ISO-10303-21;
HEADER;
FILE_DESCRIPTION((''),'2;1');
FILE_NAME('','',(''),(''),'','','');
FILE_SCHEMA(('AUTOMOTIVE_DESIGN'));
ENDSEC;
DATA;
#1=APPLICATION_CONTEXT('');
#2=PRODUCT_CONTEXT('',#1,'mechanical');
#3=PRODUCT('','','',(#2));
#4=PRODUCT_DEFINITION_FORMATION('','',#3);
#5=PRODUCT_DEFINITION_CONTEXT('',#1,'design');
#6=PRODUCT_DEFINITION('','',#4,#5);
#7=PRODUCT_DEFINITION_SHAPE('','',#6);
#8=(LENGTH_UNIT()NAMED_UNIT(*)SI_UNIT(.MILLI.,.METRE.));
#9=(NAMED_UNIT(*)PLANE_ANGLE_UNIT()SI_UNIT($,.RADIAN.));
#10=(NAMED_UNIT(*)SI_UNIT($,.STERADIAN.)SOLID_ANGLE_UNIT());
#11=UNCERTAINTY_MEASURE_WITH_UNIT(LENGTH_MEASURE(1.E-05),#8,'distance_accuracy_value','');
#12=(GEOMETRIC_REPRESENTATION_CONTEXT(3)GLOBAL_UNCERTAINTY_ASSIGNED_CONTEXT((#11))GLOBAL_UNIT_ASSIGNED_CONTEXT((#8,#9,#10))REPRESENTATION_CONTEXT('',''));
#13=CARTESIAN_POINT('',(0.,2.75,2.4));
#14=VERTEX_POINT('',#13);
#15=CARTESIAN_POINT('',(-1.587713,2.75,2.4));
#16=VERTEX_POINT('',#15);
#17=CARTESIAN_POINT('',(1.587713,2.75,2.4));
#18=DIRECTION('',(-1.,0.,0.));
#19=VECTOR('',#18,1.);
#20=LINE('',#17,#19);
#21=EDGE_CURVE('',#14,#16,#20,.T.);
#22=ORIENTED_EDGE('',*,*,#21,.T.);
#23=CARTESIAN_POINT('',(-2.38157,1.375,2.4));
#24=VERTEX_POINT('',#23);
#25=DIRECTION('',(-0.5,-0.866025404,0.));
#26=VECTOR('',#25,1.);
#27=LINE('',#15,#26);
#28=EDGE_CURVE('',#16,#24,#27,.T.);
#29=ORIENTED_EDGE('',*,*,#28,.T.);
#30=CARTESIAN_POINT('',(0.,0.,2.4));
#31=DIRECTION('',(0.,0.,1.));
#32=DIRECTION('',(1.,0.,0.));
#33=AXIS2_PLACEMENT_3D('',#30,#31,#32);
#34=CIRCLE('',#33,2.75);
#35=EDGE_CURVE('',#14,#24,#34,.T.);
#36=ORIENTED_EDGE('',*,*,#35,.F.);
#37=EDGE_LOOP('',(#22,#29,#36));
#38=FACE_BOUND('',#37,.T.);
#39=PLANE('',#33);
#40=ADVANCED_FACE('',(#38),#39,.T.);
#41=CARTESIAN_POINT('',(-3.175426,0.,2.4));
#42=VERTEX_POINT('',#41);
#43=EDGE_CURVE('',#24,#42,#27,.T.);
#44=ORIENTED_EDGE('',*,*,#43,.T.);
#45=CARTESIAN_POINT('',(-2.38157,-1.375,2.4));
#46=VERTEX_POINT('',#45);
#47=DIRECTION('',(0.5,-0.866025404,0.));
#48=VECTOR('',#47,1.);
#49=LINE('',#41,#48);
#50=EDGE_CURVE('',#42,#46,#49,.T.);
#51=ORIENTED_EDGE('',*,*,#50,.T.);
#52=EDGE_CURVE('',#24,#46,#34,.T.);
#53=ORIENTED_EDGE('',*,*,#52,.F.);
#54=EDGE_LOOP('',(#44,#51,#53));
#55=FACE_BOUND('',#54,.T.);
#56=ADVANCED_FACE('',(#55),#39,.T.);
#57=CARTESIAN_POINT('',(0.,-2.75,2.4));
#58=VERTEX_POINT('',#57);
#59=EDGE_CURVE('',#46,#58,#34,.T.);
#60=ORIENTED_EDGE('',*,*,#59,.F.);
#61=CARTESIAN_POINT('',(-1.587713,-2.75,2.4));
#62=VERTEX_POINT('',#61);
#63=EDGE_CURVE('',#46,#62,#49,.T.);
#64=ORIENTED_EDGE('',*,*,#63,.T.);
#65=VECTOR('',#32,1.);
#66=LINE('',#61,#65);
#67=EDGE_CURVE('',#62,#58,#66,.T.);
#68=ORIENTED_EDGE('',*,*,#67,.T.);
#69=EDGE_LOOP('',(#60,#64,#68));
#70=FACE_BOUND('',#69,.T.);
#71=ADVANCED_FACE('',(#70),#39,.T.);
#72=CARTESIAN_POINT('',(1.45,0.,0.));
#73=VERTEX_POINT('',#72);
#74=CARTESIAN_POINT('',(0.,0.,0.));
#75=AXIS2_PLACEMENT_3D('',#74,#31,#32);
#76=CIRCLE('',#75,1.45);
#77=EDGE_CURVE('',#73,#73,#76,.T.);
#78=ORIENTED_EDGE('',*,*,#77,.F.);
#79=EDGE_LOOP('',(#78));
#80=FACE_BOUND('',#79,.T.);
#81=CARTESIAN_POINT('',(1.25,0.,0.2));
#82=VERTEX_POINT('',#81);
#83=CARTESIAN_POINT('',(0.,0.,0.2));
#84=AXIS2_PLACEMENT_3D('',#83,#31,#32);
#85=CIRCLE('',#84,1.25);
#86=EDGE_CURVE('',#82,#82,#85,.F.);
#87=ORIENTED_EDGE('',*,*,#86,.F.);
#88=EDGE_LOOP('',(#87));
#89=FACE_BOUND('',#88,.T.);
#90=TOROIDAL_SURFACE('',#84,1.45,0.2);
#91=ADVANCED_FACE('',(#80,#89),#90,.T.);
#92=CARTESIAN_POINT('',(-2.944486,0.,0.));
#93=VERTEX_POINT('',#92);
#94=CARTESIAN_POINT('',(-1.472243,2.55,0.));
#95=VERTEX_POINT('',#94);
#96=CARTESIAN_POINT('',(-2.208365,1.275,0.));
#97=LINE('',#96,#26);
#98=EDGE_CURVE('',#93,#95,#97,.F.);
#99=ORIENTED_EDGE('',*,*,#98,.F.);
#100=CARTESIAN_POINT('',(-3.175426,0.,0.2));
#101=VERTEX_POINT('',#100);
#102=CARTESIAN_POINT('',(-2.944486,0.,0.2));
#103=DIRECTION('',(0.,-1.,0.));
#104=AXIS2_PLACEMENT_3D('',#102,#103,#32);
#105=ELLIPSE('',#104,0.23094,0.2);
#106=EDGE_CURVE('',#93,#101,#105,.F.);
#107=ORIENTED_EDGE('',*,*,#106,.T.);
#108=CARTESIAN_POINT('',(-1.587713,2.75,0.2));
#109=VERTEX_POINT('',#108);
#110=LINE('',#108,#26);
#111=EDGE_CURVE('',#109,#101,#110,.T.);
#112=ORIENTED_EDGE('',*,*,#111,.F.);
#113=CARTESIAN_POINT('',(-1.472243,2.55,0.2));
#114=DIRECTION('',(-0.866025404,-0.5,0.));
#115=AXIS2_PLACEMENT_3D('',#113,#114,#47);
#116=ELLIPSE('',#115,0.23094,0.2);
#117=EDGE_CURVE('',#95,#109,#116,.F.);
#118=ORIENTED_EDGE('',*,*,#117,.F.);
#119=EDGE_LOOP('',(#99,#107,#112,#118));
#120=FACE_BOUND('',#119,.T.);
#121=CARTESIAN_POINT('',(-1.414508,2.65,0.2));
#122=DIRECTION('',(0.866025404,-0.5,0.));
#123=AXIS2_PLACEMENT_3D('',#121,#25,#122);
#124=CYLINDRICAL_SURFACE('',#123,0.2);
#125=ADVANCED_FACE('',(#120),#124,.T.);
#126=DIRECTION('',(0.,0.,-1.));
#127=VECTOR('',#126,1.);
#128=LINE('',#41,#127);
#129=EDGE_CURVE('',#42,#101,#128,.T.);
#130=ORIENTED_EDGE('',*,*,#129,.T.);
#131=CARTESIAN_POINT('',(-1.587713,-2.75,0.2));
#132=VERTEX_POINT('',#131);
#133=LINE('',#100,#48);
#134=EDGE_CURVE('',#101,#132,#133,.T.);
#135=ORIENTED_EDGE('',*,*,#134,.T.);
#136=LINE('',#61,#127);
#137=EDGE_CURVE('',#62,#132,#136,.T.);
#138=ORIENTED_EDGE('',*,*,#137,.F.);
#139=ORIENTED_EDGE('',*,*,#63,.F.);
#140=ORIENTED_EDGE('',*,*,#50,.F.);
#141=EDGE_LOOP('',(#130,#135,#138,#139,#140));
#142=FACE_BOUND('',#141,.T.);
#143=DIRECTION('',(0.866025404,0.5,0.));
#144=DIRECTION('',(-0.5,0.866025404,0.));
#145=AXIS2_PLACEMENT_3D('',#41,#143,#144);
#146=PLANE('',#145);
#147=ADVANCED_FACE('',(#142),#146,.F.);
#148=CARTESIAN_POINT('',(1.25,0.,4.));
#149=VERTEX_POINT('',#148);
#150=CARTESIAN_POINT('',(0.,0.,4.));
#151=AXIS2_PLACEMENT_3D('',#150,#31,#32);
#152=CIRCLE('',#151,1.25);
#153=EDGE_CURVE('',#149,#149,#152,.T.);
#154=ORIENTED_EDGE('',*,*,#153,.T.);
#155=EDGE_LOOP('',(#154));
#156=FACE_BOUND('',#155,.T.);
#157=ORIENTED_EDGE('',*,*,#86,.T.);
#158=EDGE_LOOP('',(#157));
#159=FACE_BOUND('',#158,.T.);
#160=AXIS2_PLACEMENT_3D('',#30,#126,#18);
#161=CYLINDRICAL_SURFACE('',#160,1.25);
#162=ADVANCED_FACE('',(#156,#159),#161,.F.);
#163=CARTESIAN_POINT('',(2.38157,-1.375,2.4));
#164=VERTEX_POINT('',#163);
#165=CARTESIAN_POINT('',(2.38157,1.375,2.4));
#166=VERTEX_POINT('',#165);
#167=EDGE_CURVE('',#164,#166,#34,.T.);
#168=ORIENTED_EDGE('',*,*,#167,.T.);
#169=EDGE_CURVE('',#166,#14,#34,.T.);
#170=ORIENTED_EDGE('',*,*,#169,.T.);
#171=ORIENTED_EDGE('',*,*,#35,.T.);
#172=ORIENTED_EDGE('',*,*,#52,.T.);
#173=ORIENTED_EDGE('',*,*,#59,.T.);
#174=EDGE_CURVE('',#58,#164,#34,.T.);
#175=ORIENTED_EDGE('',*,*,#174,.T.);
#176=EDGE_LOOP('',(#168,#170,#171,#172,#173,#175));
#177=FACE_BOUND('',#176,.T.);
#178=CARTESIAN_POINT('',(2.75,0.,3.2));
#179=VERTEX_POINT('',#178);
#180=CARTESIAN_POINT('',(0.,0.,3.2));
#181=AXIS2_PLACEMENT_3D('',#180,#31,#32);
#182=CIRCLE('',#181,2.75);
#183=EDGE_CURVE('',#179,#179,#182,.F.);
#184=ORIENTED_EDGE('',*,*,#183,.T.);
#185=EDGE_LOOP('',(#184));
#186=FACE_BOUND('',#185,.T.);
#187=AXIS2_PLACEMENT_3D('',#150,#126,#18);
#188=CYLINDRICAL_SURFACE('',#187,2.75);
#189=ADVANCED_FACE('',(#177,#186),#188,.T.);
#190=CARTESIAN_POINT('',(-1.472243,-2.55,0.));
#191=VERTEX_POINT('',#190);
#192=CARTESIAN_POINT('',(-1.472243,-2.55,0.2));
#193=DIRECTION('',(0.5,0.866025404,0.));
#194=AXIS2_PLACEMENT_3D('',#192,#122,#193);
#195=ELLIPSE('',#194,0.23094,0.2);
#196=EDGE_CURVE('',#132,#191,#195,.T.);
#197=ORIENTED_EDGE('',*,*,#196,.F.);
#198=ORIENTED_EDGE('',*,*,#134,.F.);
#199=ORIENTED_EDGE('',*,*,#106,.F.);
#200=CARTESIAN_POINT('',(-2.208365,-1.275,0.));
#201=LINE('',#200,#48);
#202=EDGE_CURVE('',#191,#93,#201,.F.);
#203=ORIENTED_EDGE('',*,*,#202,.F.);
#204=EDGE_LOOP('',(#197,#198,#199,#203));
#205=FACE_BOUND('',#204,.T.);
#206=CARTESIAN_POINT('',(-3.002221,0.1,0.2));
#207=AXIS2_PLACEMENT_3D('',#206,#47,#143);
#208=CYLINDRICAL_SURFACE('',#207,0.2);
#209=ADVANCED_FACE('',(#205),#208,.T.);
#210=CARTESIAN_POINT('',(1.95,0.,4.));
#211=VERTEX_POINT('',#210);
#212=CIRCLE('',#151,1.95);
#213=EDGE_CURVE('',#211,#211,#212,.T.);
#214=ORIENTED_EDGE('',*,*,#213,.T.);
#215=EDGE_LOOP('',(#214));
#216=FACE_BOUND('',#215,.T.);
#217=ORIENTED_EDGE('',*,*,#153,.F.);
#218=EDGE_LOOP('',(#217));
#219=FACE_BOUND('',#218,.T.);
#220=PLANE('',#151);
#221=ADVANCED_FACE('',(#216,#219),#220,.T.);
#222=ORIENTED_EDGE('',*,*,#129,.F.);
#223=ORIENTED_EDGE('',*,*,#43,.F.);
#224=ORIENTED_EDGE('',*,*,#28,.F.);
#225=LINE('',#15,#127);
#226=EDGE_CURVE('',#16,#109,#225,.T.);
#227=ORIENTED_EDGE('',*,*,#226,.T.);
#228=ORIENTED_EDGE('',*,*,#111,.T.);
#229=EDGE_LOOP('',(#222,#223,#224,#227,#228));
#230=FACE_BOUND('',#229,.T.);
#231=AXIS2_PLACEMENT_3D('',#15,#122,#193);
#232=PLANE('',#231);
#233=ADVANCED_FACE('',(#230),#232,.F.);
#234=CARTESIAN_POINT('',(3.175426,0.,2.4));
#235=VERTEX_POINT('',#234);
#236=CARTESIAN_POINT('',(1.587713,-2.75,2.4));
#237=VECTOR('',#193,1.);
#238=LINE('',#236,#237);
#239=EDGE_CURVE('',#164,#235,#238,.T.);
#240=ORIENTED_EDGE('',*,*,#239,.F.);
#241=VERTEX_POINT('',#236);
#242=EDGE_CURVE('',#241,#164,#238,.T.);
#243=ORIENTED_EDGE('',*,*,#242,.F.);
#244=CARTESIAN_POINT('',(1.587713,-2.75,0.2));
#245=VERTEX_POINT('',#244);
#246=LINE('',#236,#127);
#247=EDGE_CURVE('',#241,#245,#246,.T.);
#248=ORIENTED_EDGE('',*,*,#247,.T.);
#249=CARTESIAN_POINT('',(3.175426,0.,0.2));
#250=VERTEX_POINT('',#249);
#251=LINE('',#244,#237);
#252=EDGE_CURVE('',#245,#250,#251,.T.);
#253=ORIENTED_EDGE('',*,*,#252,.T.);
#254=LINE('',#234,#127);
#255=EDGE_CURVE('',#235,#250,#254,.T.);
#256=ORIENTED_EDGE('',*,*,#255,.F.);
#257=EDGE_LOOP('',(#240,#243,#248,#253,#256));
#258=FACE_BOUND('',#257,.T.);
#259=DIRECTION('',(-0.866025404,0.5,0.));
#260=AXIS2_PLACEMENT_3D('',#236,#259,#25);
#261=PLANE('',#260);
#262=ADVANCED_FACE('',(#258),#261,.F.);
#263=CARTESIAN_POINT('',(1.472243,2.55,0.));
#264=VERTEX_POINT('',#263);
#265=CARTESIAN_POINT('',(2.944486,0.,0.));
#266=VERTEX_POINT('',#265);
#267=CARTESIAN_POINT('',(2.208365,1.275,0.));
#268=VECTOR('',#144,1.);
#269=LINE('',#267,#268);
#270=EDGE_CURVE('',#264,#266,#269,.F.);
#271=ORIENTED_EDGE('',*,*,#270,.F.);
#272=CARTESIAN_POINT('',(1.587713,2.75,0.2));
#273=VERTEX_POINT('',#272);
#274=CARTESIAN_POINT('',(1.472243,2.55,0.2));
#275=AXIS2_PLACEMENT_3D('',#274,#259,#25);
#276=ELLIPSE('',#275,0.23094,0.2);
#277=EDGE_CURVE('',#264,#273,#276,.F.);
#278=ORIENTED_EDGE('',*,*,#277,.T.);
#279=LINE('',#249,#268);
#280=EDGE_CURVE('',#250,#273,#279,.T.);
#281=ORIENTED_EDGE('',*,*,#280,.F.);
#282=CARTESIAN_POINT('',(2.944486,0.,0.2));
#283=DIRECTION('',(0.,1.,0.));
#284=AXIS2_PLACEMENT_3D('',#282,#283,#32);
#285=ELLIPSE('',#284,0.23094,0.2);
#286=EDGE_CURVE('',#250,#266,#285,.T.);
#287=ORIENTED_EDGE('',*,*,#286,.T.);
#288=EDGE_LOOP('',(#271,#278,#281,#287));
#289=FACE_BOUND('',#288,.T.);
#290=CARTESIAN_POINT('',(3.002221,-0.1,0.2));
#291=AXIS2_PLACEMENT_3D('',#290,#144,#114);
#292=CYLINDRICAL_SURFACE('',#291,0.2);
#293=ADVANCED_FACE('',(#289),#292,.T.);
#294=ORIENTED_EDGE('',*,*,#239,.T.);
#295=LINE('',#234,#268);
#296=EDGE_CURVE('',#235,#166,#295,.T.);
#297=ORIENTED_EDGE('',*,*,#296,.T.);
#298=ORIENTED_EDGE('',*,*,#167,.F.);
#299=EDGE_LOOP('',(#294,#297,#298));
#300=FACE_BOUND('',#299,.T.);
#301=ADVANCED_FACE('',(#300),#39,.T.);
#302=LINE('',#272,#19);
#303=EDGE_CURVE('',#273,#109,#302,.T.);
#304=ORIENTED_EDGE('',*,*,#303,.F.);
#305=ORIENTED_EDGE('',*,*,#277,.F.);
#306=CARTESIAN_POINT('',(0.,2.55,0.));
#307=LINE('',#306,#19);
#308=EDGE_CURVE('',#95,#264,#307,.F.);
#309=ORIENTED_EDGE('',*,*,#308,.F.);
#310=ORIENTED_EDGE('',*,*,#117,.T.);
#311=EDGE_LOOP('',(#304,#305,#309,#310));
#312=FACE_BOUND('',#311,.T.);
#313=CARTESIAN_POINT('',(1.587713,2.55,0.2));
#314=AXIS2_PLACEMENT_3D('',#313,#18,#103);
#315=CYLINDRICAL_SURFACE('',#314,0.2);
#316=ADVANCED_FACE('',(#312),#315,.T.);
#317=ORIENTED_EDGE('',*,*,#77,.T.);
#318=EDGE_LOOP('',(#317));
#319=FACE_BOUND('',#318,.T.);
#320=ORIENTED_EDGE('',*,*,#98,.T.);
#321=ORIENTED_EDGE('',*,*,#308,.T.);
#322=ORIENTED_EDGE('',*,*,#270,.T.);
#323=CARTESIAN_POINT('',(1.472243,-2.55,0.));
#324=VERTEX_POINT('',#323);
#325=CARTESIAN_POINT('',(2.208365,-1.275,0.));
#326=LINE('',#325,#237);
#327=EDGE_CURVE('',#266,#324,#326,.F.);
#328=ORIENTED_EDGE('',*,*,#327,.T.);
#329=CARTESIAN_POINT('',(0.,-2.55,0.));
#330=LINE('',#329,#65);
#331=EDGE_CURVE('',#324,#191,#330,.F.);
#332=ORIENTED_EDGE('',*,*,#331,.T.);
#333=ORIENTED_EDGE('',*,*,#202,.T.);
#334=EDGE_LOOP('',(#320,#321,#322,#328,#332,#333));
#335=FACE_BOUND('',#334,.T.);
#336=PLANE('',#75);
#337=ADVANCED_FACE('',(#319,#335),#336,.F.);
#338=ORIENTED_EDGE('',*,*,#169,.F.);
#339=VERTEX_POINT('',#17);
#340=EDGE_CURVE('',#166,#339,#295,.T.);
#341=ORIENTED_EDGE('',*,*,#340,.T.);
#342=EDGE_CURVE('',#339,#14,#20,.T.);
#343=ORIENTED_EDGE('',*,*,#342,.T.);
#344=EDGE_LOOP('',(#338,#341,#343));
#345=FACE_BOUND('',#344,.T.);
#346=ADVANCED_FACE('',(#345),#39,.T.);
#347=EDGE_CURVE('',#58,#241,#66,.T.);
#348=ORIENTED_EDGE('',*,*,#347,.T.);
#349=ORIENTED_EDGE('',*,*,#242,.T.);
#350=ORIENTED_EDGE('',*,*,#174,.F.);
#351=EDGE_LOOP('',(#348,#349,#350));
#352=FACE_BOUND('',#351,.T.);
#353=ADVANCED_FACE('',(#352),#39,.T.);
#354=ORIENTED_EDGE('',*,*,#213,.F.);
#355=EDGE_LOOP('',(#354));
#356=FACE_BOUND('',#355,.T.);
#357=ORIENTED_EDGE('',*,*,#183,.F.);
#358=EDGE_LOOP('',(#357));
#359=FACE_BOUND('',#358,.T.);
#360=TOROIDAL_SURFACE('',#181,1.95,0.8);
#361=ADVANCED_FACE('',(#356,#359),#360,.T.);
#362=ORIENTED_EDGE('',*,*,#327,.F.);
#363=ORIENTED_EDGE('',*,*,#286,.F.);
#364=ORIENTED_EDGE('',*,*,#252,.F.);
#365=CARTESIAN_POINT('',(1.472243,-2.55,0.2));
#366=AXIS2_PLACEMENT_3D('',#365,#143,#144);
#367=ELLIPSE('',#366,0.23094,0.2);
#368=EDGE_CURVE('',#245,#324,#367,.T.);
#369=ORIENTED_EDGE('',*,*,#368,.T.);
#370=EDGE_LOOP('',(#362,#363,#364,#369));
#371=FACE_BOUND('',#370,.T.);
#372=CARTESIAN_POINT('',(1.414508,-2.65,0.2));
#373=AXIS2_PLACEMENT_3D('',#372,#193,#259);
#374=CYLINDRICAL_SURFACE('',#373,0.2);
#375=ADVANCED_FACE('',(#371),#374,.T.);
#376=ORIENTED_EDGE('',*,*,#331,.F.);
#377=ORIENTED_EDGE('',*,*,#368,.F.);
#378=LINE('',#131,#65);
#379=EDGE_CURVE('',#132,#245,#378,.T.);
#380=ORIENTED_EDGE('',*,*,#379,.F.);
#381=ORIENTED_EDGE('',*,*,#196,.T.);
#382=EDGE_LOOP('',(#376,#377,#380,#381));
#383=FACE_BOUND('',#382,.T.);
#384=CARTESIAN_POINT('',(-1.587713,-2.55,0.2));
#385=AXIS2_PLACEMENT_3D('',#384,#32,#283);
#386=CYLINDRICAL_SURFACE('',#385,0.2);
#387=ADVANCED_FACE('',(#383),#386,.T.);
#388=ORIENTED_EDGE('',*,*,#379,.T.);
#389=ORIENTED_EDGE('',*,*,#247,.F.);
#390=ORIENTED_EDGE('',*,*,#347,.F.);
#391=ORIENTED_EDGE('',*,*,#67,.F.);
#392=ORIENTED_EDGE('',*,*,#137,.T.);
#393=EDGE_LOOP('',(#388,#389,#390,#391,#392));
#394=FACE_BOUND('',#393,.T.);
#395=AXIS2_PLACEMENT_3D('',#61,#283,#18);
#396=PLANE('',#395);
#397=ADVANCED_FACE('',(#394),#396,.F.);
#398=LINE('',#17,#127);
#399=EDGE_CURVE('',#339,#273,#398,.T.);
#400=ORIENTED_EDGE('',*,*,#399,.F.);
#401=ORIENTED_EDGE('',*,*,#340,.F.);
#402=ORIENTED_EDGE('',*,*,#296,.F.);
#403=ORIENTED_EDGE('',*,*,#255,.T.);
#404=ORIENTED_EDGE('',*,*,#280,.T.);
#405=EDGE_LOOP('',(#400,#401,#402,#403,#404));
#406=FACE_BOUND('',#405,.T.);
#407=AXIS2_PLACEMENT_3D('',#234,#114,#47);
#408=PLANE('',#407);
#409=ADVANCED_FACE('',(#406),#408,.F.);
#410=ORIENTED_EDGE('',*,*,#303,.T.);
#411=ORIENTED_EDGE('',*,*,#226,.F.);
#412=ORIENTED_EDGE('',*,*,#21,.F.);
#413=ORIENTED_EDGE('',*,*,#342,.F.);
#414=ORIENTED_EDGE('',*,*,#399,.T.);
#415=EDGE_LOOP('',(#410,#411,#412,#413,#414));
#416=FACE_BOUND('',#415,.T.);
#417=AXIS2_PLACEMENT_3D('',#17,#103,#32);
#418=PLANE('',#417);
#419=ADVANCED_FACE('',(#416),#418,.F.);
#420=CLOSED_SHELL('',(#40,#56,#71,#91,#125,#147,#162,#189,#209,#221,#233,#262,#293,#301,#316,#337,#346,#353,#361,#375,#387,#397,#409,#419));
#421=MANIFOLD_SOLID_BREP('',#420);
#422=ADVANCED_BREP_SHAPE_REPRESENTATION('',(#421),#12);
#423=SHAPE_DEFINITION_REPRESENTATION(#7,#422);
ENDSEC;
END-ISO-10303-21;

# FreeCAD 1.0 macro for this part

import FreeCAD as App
import Part
import Sketcher
Q = App.Units.Quantity


def edges_at(feature, points):
    """Names of the edges that pass closest to the given points."""
    edges = feature.Shape.Edges
    near = lambda p: min(range(len(edges)), key=lambda i: edges[i].distToShape(Part.Vertex(*p))[0])
    return sorted({f"Edge{near(p) + 1}" for p in points})


def add_polygon(sketch, points):
    """Adds a closed chain of lines whose ends are joined by coincident constraints."""
    first, n = sketch.GeometryCount, len(points)
    for a, b in zip(points, points[1:] + points[:1]):
        sketch.addGeometry(Part.LineSegment(App.Vector(*a, 0), App.Vector(*b, 0)), False)
    for i in range(n):
        sketch.addConstraint(Sketcher.Constraint("Coincident", first + i, 2, first + (i + 1) % n, 1))

doc = App.newDocument("Part")
params = doc.addObject("Spreadsheet::Sheet", "Params")
for row, (alias, value) in enumerate([
    ("sketch1_diameter", "2.5 mm"),
    ("pad1_length", "2.4 mm"),
    ("sketch2_diameter", "5.5 mm"),
    ("sketch2_diameter2", "2.5 mm"),
    ("pad2_length", "1.6 mm"),
    ("fillet_radius", "0.2 mm"),
    ("fillet2_radius", "0.8 mm"),
], start=1):
    params.set(f"A{row}", alias)
    params.set(f"B{row}", "=" + value)
    params.setAlias(f"B{row}", alias)

body = doc.addObject("PartDesign::Body", "Body")

sketch1 = body.newObject("Sketcher::SketchObject", "Sketch")
sketch1.AttachmentSupport = (doc.getObject("XY_Plane"), [""])
sketch1.MapMode = "FlatFace"
add_polygon(sketch1, [(3.2, 0), (1.6, 2.8), (-1.6, 2.8), (-3.2, 0), (-1.6, -2.8), (1.6, -2.8)])
sketch1.addGeometry(Part.Circle(App.Vector(0, 0, 0), App.Vector(0, 0, 1), 1.2), False)
sketch1.addConstraint([
    Sketcher.Constraint("Horizontal", 1),
    Sketcher.Constraint("Horizontal", 4),
    Sketcher.Constraint("Coincident", 6, 3, -1, 1),
    Sketcher.Constraint("Symmetric", 0, 2, 3, 2, -1, 1),
    Sketcher.Constraint("Symmetric", 2, 2, 5, 2, -1, 1),
    Sketcher.Constraint("PointOnObject", 2, 2, -1),
    Sketcher.Constraint("Parallel", 2, 5),
    Sketcher.Constraint("Vertical", 1, 2, 3, 2),
    Sketcher.Constraint("Diameter", 6, Q("2.5 mm")),
    Sketcher.Constraint("Angle", 0, Q("120 deg")),
    Sketcher.Constraint("DistanceY", 3, 2, 1, 2, Q("5.5 mm")),
    Sketcher.Constraint("DistanceX", 1, 2, 1, 1, Q("3.175426 mm")),
])
sketch1.setExpression("Constraints[14]", "Params.sketch1_diameter")
pad1 = body.newObject("PartDesign::Pad", "Pad")
pad1.Profile = sketch1
pad1.setExpression("Length", "Params.pad1_length")

sketch2 = body.newObject("Sketcher::SketchObject", "Sketch001")
sketch2.AttachmentSupport = (doc.getObject("XY_Plane"), [""])
sketch2.MapMode = "FlatFace"
sketch2.AttachmentOffset = App.Placement(App.Vector(0, 0, 2.4), App.Rotation())
sketch2.addGeometry([
    Part.Circle(App.Vector(0, 0, 0), App.Vector(0, 0, 1), 2.8),
    Part.Circle(App.Vector(0, 0, 0), App.Vector(0, 0, 1), 1.2),
], False)
sketch2.addConstraint([
    Sketcher.Constraint("Coincident", 0, 3, -1, 1),
    Sketcher.Constraint("Coincident", 1, 3, -1, 1),
    Sketcher.Constraint("Diameter", 0, Q("5.5 mm")),
    Sketcher.Constraint("Diameter", 1, Q("2.5 mm")),
])
sketch2.setExpression("Constraints[2]", "Params.sketch2_diameter")
sketch2.setExpression("Constraints[3]", "Params.sketch2_diameter2")
pad2 = body.newObject("PartDesign::Pad", "Pad001")
pad2.Profile = sketch2
pad2.setExpression("Length", "Params.pad2_length")
doc.recompute()

fillet = body.newObject("PartDesign::Fillet", "Fillet")
fillet.Base = (pad2, edges_at(pad2, [
    (-1.25, 0, 0),
    (0, -2.75, 0),
    (-2.382, -1.375, 0),
    (-2.382, 1.375, 0),
    (0, 2.75, 0),
    (2.382, 1.375, 0),
    (2.382, -1.375, 0),
]))
fillet.setExpression("Radius", "Params.fillet_radius")
doc.recompute()

fillet2 = body.newObject("PartDesign::Fillet", "Fillet001")
fillet2.Base = (fillet, edges_at(fillet, [(-2.75, 0, 4)]))
fillet2.setExpression("Radius", "Params.fillet2_radius")

doc.recompute()
